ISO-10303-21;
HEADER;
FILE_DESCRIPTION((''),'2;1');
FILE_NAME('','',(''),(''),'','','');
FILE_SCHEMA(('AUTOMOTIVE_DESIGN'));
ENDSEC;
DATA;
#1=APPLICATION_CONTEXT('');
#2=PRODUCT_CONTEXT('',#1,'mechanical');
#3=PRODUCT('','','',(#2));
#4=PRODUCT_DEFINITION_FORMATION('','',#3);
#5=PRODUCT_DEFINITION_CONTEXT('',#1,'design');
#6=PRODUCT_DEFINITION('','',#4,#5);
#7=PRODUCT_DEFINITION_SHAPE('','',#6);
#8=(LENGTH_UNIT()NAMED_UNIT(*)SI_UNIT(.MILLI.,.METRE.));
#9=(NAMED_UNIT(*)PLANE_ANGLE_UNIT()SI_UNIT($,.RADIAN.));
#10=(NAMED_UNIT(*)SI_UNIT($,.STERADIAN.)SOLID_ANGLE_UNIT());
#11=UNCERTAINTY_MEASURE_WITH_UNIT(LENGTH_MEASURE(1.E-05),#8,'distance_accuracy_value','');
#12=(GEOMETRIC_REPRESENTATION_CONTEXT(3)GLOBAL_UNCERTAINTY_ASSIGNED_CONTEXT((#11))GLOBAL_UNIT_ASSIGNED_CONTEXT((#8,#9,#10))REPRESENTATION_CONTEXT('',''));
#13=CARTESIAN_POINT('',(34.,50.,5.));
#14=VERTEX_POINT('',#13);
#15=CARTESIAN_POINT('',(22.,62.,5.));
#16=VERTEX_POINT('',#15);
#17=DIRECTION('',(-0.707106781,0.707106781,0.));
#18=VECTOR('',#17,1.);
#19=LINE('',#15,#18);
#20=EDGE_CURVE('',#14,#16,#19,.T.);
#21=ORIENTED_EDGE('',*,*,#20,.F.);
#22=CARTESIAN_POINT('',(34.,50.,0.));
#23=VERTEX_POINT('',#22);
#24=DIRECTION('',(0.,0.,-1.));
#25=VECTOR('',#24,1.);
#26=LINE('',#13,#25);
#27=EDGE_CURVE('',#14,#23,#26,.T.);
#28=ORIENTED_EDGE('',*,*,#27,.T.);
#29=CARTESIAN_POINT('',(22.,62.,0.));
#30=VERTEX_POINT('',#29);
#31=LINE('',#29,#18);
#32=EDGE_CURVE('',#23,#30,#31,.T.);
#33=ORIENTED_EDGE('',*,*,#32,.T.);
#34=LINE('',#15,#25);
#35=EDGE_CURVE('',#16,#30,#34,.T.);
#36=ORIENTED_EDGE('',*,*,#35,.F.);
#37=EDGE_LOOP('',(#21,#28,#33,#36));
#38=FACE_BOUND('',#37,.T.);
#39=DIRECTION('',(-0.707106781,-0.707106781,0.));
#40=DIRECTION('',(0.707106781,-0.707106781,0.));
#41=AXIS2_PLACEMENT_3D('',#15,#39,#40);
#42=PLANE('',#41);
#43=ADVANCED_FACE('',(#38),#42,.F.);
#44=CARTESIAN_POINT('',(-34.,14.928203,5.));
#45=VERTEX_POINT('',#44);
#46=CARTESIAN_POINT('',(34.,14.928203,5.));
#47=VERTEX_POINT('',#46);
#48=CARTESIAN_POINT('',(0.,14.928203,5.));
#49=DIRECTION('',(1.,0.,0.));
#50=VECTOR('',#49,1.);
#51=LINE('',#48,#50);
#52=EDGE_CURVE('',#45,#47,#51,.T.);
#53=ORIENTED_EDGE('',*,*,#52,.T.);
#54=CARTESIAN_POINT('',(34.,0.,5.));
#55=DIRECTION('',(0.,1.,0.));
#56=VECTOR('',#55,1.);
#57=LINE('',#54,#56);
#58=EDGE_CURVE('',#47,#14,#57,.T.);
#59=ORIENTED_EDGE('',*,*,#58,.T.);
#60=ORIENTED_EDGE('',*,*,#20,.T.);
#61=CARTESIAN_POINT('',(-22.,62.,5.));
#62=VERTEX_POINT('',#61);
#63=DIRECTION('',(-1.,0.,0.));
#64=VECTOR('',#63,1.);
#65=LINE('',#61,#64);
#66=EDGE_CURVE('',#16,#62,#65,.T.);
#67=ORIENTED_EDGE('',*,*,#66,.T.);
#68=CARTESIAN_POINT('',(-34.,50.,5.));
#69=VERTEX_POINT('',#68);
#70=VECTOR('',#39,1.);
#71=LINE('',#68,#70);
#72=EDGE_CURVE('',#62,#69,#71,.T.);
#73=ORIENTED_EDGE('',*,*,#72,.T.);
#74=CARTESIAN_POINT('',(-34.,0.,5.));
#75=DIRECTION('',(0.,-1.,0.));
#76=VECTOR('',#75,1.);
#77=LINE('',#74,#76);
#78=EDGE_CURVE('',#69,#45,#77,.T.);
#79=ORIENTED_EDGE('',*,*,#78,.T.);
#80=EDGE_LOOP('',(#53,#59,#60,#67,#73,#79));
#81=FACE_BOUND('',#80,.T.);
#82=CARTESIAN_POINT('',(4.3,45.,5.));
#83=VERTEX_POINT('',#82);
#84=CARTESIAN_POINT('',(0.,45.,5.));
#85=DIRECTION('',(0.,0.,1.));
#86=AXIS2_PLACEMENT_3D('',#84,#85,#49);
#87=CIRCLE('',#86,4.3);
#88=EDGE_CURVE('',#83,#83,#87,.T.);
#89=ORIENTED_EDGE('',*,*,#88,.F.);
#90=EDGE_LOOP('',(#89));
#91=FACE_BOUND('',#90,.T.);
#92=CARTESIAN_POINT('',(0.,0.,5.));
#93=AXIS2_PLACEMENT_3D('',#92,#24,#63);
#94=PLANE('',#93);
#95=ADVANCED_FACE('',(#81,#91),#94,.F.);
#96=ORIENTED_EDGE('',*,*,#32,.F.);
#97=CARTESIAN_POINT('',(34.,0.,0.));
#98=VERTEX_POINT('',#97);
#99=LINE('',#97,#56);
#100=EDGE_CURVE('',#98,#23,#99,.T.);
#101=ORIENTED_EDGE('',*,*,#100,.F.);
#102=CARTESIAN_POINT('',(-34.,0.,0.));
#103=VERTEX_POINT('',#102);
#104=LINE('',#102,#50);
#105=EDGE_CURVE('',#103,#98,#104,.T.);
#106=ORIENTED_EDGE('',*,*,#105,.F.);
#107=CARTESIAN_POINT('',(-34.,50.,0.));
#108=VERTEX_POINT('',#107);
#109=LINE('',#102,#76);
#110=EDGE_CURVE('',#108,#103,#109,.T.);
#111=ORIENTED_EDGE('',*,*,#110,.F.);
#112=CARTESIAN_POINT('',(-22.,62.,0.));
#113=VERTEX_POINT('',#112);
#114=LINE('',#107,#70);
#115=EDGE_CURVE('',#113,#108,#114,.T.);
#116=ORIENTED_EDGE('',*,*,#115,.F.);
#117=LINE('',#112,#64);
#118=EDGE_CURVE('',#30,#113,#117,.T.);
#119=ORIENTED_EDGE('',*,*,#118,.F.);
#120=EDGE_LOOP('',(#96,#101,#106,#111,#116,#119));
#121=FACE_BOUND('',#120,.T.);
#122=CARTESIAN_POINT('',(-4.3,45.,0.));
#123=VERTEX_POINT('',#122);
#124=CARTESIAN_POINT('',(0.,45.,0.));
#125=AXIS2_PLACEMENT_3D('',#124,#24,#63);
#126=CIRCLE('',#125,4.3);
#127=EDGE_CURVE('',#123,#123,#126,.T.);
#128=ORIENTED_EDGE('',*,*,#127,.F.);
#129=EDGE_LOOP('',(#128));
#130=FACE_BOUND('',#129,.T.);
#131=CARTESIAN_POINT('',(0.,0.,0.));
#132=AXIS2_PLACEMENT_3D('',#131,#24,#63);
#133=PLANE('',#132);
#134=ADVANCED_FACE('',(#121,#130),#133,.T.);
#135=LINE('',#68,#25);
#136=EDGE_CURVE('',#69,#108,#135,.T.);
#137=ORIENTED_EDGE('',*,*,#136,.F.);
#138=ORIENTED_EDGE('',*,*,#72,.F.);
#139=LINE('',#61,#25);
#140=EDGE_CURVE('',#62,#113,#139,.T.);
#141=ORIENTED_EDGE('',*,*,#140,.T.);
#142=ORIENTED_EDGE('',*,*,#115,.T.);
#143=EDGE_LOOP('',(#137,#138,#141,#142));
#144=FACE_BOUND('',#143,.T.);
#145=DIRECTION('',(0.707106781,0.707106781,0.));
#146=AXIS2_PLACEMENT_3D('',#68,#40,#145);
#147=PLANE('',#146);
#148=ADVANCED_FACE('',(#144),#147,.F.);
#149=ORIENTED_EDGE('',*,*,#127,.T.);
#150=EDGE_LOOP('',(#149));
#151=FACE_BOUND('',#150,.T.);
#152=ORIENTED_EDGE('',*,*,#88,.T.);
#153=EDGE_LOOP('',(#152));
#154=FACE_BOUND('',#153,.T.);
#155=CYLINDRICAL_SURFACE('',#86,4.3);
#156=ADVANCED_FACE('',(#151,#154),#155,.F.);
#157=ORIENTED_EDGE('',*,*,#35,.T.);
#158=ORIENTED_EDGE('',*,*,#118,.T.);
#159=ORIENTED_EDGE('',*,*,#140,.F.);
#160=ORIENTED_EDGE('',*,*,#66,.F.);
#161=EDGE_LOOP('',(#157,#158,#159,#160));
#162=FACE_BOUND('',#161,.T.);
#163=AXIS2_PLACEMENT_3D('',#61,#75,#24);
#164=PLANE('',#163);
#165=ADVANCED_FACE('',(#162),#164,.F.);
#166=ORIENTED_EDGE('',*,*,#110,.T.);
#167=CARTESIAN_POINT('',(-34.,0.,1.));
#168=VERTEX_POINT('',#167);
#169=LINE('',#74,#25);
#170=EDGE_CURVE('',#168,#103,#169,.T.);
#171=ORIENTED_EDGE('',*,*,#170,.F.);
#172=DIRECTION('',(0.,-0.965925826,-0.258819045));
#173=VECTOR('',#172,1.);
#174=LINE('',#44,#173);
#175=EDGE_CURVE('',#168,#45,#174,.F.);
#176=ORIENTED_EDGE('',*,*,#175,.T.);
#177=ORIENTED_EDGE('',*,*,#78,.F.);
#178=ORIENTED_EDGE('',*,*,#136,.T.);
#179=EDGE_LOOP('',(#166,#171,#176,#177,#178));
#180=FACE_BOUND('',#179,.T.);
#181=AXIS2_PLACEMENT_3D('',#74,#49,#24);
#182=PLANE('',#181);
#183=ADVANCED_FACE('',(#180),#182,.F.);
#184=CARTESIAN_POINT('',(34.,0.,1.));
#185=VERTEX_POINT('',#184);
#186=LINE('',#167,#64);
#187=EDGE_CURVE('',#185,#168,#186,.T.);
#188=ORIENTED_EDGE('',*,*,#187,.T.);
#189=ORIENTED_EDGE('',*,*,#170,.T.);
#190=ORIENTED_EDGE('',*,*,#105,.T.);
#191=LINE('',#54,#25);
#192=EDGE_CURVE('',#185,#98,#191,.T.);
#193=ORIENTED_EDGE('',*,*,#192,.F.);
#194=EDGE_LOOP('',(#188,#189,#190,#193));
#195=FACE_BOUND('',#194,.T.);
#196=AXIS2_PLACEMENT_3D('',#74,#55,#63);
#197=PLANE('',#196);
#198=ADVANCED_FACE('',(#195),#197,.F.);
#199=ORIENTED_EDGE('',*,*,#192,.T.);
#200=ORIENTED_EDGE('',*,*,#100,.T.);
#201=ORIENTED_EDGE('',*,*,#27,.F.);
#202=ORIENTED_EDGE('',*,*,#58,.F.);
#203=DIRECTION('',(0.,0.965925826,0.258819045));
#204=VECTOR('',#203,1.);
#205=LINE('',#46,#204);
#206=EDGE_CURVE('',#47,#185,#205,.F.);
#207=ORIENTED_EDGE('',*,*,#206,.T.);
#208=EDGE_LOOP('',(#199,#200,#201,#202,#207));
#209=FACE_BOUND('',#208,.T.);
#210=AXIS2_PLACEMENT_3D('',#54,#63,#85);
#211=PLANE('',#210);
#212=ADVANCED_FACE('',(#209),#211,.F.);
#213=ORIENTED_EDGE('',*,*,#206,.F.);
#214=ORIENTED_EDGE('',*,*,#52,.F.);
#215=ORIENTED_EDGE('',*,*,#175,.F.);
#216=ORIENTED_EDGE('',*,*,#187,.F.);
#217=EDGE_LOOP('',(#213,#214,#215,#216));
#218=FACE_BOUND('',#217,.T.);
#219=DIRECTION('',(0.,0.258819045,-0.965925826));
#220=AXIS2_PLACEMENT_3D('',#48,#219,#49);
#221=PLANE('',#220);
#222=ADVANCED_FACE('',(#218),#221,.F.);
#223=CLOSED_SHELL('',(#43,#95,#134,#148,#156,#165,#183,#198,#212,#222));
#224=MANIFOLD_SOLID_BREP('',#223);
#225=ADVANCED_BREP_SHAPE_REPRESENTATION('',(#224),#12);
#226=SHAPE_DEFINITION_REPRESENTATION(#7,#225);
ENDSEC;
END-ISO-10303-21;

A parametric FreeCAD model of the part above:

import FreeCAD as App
import Part
import Sketcher


def edges_at(feature, points):
    """Names of the edges that pass closest to the given points."""
    edges = feature.Shape.Edges
    near = lambda p: min(range(len(edges)), key=lambda i: edges[i].distToShape(Part.Vertex(*p))[0])
    return sorted({f"Edge{near(p) + 1}" for p in points})

doc = App.newDocument("Part")
body = doc.addObject("PartDesign::Body", "Body")

# Sketch on XY plane
sketch1 = body.newObject("Sketcher::SketchObject", "Sketch")
sketch1.AttachmentSupport = (doc.getObject("XY_Plane"), [""])
sketch1.MapMode = "FlatFace"
sketch1.addGeometry([
    Part.LineSegment(App.Vector(-22, 62, 0), App.Vector(-34, 50, 0)),  # 0
    Part.LineSegment(App.Vector(-34, 50, 0), App.Vector(-34, 0, 0)),  # 1
    Part.LineSegment(App.Vector(-34, 0, 0), App.Vector(34, 0, 0)),  # 2
    Part.LineSegment(App.Vector(34, 0, 0), App.Vector(34, 50, 0)),  # 3
    Part.LineSegment(App.Vector(34, 50, 0), App.Vector(22, 62, 0)),  # 4
    Part.LineSegment(App.Vector(22, 62, 0), App.Vector(-22, 62, 0)),  # 5
], False)
sketch1.addConstraint([
    Sketcher.Constraint("Coincident", 0, 2, 1, 1),
    Sketcher.Constraint("Coincident", 1, 2, 2, 1),
    Sketcher.Constraint("Coincident", 2, 2, 3, 1),
    Sketcher.Constraint("Coincident", 3, 2, 4, 1),
    Sketcher.Constraint("Coincident", 4, 2, 5, 1),
    Sketcher.Constraint("Coincident", 5, 2, 0, 1),
    Sketcher.Constraint("Vertical", 1),
    Sketcher.Constraint("Horizontal", 2),
    Sketcher.Constraint("Vertical", 3),
    Sketcher.Constraint("Horizontal", 5),
    Sketcher.Constraint("Symmetric", 1, 2, 2, 2, -1, 1),
    Sketcher.Constraint("Perpendicular", 0, 4),
    Sketcher.Constraint("Horizontal", 0, 2, 3, 2),
    Sketcher.Constraint("Equal", 0, 4),
    Sketcher.Constraint("DistanceX", 2, 1, 2, 2, 68.0),
    Sketcher.Constraint("DistanceX", 5, 2, 5, 1, 44.0),
    Sketcher.Constraint("DistanceY", 1, 2, 1, 1, 50.0),
])
pad1 = body.newObject("PartDesign::Pad", "Pad")
pad1.Profile = sketch1
pad1.Length = 5

# Sketch on XY plane
sketch2 = body.newObject("Sketcher::SketchObject", "Sketch001")
sketch2.AttachmentSupport = (doc.getObject("XY_Plane"), [""])
sketch2.MapMode = "FlatFace"
sketch2.AttachmentOffset = App.Placement(App.Vector(0, 0, 5), App.Rotation())
sketch2.addGeometry(Part.Circle(App.Vector(0, 45, 0), App.Vector(0, 0, 1), 4.3), False)
sketch2.addConstraint([
    Sketcher.Constraint("PointOnObject", 0, 3, -2),
    Sketcher.Constraint("Diameter", 0, 8.6),
    Sketcher.Constraint("DistanceY", -1, 1, 0, 3, 45.0),
])
doc.recompute()
hole = body.newObject("PartDesign::Hole", "Hole")
hole.Profile = sketch2
hole.ThreadType = "None"
hole.Diameter = 8.6
hole.DepthType = "Dimension"
hole.Depth = 80
hole.DrillPoint = "Angled"
hole.DrillPointAngle = 118
doc.recompute()

chamfer = body.newObject("PartDesign::Chamfer", "Chamfer")
chamfer.Base = (hole, edges_at(hole, [(0, 0, 5)]))
chamfer.ChamferType = "Two distances"
chamfer.Size = 4
chamfer.Size2 = 14.928203
chamfer.FlipDirection = True

doc.recompute()
